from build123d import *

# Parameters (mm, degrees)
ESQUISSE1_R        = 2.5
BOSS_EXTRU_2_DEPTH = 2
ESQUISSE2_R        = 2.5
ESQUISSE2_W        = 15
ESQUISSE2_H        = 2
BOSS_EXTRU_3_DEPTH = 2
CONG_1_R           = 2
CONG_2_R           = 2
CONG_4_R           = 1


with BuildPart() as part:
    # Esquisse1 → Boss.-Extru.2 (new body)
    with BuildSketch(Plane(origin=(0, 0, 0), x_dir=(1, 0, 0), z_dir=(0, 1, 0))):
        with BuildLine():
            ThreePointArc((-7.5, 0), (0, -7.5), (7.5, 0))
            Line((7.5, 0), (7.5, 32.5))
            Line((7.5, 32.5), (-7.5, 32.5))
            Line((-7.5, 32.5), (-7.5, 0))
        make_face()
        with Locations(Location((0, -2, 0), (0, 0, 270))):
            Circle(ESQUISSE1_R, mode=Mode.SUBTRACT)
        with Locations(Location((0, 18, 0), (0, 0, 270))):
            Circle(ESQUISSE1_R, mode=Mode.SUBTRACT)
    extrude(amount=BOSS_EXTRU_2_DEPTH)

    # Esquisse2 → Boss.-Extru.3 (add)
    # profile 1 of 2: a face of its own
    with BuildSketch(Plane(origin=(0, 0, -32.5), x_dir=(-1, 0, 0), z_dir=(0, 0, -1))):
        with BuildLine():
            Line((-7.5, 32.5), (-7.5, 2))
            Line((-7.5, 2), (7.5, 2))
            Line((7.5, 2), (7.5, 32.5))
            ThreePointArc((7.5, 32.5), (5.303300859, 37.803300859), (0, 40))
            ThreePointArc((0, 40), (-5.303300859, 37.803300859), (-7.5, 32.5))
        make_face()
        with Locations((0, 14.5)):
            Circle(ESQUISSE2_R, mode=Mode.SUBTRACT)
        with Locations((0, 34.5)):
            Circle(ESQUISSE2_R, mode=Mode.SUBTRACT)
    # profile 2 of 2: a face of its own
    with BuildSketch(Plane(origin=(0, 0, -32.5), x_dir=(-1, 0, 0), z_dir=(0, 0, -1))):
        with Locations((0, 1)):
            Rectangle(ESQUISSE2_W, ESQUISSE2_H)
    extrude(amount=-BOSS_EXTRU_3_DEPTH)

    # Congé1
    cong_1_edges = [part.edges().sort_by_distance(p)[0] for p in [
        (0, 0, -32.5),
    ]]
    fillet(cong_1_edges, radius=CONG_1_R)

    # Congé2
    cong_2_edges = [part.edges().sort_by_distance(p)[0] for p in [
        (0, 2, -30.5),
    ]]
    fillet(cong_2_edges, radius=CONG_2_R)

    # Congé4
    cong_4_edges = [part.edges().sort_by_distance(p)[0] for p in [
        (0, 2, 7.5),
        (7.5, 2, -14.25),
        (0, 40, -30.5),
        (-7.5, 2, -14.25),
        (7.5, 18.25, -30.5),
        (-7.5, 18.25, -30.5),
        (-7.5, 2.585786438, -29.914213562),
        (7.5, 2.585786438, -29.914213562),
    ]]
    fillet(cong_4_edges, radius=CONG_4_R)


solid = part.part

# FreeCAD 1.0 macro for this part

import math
import FreeCAD as App
import Part
import Sketcher
Q = App.Units.Quantity


def edges_at(feature, points):
    """Names of the edges that pass closest to the given points."""
    edges = feature.Shape.Edges
    near = lambda p: min(range(len(edges)), key=lambda i: edges[i].distToShape(Part.Vertex(*p))[0])
    return sorted({f"Edge{near(p) + 1}" for p in points})

doc = App.newDocument("Part")
body = doc.addObject("PartDesign::Body", "Body")

sketch1 = body.newObject("Sketcher::SketchObject", "Sketch")
sketch1.AttachmentSupport = (doc.getObject("XZ_Plane"), [""])
sketch1.MapMode = "FlatFace"
sketch1.addGeometry([
    Part.ArcOfCircle(Part.Circle(App.Vector(0, 0, 0), App.Vector(0, 0, 1), 7.5), math.radians(0), math.radians(180)),
    Part.LineSegment(App.Vector(7.5, 0, 0), App.Vector(7.5, -32.5, 0)),
    Part.LineSegment(App.Vector(7.5, -32.5, 0), App.Vector(-7.5, -32.5, 0)),
    Part.LineSegment(App.Vector(-7.5, -32.5, 0), App.Vector(-7.5, 0, 0)),
    Part.Circle(App.Vector(0, 2, 0), App.Vector(0, 0, 1), 2.5),
    Part.Circle(App.Vector(0, -18, 0), App.Vector(0, 0, 1), 2.5),
], False)
sketch1.addConstraint([
    Sketcher.Constraint("Tangent", 0, 1, 1, 1),
    Sketcher.Constraint("Coincident", 1, 2, 2, 1),
    Sketcher.Constraint("Coincident", 2, 2, 3, 1),
    Sketcher.Constraint("Tangent", 3, 2, 0, 2),
    Sketcher.Constraint("Vertical", 1),
    Sketcher.Constraint("Horizontal", 2),
    Sketcher.Constraint("Vertical", 3),
    Sketcher.Constraint("Coincident", 0, 3, -1, 1),
    Sketcher.Constraint("Equal", 4, 5),
    Sketcher.Constraint("PointOnObject", 4, 3, -2),
    Sketcher.Constraint("PointOnObject", 5, 3, -2),
    Sketcher.Constraint("Diameter", 4, Q("5 mm")),
    Sketcher.Constraint("Radius", 0, Q("7.5 mm")),
    Sketcher.Constraint("DistanceY", 1, 2, 1, 1, Q("32.5 mm")),
    Sketcher.Constraint("DistanceY", -1, 1, 4, 3, Q("2 mm")),
    Sketcher.Constraint("DistanceY", 5, 3, -1, 1, Q("18 mm")),
])
pad1 = body.newObject("PartDesign::Pad", "Pad")
pad1.Profile = sketch1
pad1.Length = 2
pad1.Reversed = True

sketch2 = body.newObject("Sketcher::SketchObject", "Sketch001")
sketch2.AttachmentSupport = (doc.getObject("XY_Plane"), [""])
sketch2.MapMode = "FlatFace"
sketch2.AttachmentOffset = App.Placement(App.Vector(0, 0, -32.5), App.Rotation())
sketch2.addGeometry([
    Part.LineSegment(App.Vector(7.5, 32.5, 0), App.Vector(7.5, 0, 0)),
    Part.LineSegment(App.Vector(7.5, 0, 0), App.Vector(-7.5, 0, 0)),
    Part.LineSegment(App.Vector(-7.5, 0, 0), App.Vector(-7.5, 32.5, 0)),
    Part.ArcOfCircle(Part.Circle(App.Vector(0, 32.5, 0), App.Vector(0, 0, 1), 7.5), math.radians(90), math.radians(180)),
    Part.ArcOfCircle(Part.Circle(App.Vector(0, 32.5, 0), App.Vector(0, 0, 1), 7.5), math.radians(0), math.radians(90)),
    Part.Circle(App.Vector(0, 14.5, 0), App.Vector(0, 0, 1), 2.5),
    Part.Circle(App.Vector(0, 34.5, 0), App.Vector(0, 0, 1), 2.5),
], False)
sketch2.addConstraint([
    Sketcher.Constraint("Coincident", 0, 2, 1, 1),
    Sketcher.Constraint("Coincident", 1, 2, 2, 1),
    Sketcher.Constraint("Tangent", 2, 2, 3, 2),
    Sketcher.Constraint("Tangent", 3, 1, 4, 2),
    Sketcher.Constraint("Tangent", 4, 1, 0, 1),
    Sketcher.Constraint("Vertical", 0),
    Sketcher.Constraint("Horizontal", 1),
    Sketcher.Constraint("Vertical", 2),
    Sketcher.Constraint("Equal", 3, 4),
    Sketcher.Constraint("Equal", 5, 6),
    Sketcher.Constraint("Symmetric", 0, 2, 1, 2, -1, 1),
    Sketcher.Constraint("PointOnObject", 5, 3, -2),
    Sketcher.Constraint("PointOnObject", 6, 3, -2),
    Sketcher.Constraint("PointOnObject", 3, 1, -2),
    Sketcher.Constraint("Diameter", 5, Q("5 mm")),
    Sketcher.Constraint("Radius", 3, Q("7.5 mm")),
    Sketcher.Constraint("DistanceY", 0, 2, 0, 1, Q("32.5 mm")),
    Sketcher.Constraint("DistanceY", 5, 3, 3, 3, Q("18 mm")),
    Sketcher.Constraint("DistanceY", 3, 3, 6, 3, Q("2 mm")),
])
pad2 = body.newObject("PartDesign::Pad", "Pad001")
pad2.Profile = sketch2
pad2.Length = 2
doc.recompute()

fillet = body.newObject("PartDesign::Fillet", "Fillet")
fillet.Base = (pad2, edges_at(pad2, [(0, 0, -32.5)]))
fillet.Radius = 2
doc.recompute()

fillet2 = body.newObject("PartDesign::Fillet", "Fillet001")
fillet2.Base = (fillet, edges_at(fillet, [(0, 2, -30.5)]))
fillet2.Radius = 2
doc.recompute()

fillet3 = body.newObject("PartDesign::Fillet", "Fillet002")
fillet3.Base = (fillet2, edges_at(fillet2, [
    (0, 2, 7.5),
    (7.5, 2, -14.25),
    (5.303, 37.803, -30.5),
    (-7.5, 2, -14.25),
    (7.5, 18.25, -30.5),
    (-7.5, 18.25, -30.5),
    (-7.5, 2.586, -29.914),
    (7.5, 2.586, -29.914),
]))
fillet3.Radius = 1

doc.recompute()
